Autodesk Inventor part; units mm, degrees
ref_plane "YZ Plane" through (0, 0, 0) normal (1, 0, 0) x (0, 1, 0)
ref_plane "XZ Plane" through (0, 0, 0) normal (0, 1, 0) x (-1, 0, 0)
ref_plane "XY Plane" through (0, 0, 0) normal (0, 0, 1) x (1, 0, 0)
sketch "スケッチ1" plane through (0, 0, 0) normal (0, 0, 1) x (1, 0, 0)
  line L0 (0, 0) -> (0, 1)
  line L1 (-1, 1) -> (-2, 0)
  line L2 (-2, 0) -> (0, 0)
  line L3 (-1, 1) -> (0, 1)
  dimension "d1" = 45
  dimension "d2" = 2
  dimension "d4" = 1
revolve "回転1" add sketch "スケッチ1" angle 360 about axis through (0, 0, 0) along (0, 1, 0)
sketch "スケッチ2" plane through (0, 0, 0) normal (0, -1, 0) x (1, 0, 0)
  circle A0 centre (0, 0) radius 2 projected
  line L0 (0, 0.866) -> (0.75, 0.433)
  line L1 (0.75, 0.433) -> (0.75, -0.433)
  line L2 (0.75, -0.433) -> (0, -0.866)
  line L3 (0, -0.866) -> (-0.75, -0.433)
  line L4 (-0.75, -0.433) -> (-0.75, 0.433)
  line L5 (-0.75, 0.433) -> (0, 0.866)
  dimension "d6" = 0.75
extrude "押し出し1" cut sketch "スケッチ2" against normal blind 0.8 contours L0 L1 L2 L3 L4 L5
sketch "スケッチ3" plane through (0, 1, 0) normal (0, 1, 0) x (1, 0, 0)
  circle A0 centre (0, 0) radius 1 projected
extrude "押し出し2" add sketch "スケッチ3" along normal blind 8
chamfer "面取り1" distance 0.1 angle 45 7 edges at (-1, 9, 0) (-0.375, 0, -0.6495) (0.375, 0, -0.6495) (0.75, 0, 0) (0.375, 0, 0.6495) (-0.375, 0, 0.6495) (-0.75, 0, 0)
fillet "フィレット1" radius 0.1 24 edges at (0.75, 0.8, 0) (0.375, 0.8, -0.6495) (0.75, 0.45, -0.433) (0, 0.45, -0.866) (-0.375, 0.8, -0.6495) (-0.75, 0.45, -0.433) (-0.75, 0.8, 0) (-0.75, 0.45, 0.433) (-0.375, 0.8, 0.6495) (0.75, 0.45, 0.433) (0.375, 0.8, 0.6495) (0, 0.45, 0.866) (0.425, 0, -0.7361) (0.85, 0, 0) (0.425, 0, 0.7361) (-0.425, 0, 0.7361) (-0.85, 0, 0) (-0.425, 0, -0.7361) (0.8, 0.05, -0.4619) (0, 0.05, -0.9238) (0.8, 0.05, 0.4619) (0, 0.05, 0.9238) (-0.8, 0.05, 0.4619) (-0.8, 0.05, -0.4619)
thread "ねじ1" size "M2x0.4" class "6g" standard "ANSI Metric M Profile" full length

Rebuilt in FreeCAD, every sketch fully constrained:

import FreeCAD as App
import Part
import Sketcher

V = App.Vector
Q = App.Units.Quantity


def edges_at(feature, points):
    """Names of the edges that pass closest to the given points."""
    edges = feature.Shape.Edges
    near = lambda p: min(range(len(edges)), key=lambda i: edges[i].distToShape(Part.Vertex(*p))[0])
    return sorted({f"Edge{near(p) + 1}" for p in points})


def add_polygon(sketch, points):
    """Adds a closed chain of lines whose ends are joined by coincident constraints."""
    first, n = sketch.GeometryCount, len(points)
    for a, b in zip(points, points[1:] + points[:1]):
        sketch.addGeometry(Part.LineSegment(App.Vector(*a, 0), App.Vector(*b, 0)), False)
    for i in range(n):
        sketch.addConstraint(Sketcher.Constraint("Coincident", first + i, 2, first + (i + 1) % n, 1))

doc = App.newDocument("Part")
body = doc.addObject("PartDesign::Body", "Body")

sketch1 = doc.addObject("Sketcher::SketchObject", "Sketch")
body.addObject(sketch1)
sketch1.AttachmentSupport = (doc.XY_Plane, [""])
sketch1.MapMode = "FlatFace"
add_polygon(sketch1, [(-2, 0), (0, 0), (0, 1), (-1, 1)])
sketch1.addConstraint([
    Sketcher.Constraint("Horizontal", 0),
    Sketcher.Constraint("Vertical", 1),
    Sketcher.Constraint("Horizontal", 2),
    Sketcher.Constraint("Coincident", 0, 2, -1, 1),
    Sketcher.Constraint("Equal", 2, 1),
    Sketcher.Constraint("DistanceX", 0, 1, 0, 2, 2.0),
    Sketcher.Constraint("DistanceX", 2, 2, 2, 1, 1.0),
])
revolution = doc.addObject("PartDesign::Revolution", "Revolution")
body.addObject(revolution)
revolution.Profile = sketch1
revolution.ReferenceAxis = (sketch1, ["V_Axis"])
revolution.Angle = 360

sketch2 = doc.addObject("Sketcher::SketchObject", "Sketch001")
body.addObject(sketch2)
sketch2.AttachmentSupport = (doc.XZ_Plane, [""])
sketch2.MapMode = "FlatFace"
add_polygon(sketch2, [(0.75, 0.433), (0, 0.866), (-0.75, 0.433), (-0.75, -0.433), (0, -0.866), (0.75, -0.433)])
sketch2.addConstraint([
    Sketcher.Constraint("Vertical", 2),
    Sketcher.Constraint("Vertical", 5),
    Sketcher.Constraint("Symmetric", 0, 2, 3, 2, -1, 1),
    Sketcher.Constraint("Symmetric", 1, 2, 4, 2, -1, 1),
    Sketcher.Constraint("PointOnObject", 0, 2, -2),
    Sketcher.Constraint("Parallel", 0, 3),
    Sketcher.Constraint("Horizontal", 2, 2, 4, 2),
    Sketcher.Constraint("DistanceX", 1, 2, -1, 1, 0.75),
    Sketcher.Constraint("Angle", 0, Q("150.0007 deg")),
    Sketcher.Constraint("DistanceY", 2, 2, 2, 1, 0.866),
])
pocket1 = doc.addObject("PartDesign::Pocket", "Pocket")
body.addObject(pocket1)
pocket1.Profile = sketch2
pocket1.Length = 0.8

sketch3 = doc.addObject("Sketcher::SketchObject", "Sketch002")
body.addObject(sketch3)
sketch3.AttachmentSupport = (doc.XZ_Plane, [""])
sketch3.MapMode = "FlatFace"
sketch3.AttachmentOffset = App.Placement(V(0, 0, -1), App.Rotation())
sketch3.addGeometry(Part.Circle(V(0, 0, 0), V(0, 0, 1), 1), False)
sketch3.addConstraint([
    Sketcher.Constraint("Coincident", 0, 3, -1, 1),
    Sketcher.Constraint("Diameter", 0, 2.0),
])
pad1 = doc.addObject("PartDesign::Pad", "Pad")
body.addObject(pad1)
pad1.Profile = sketch3
pad1.Length = 8
pad1.Reversed = True
doc.recompute()

chamfer = doc.addObject("PartDesign::Chamfer", "Chamfer")
body.addObject(chamfer)
chamfer.Base = (pad1, edges_at(pad1, [
    (-1, 9, 0),
    (-0.375, 0, -0.649),
    (0.375, 0, -0.649),
    (0.75, 0, 0),
    (0.375, 0, 0.649),
    (-0.375, 0, 0.649),
    (-0.75, 0, 0),
]))
chamfer.Size = 0.1
doc.recompute()

fillet = doc.addObject("PartDesign::Fillet", "Fillet")
body.addObject(fillet)
fillet.Base = (chamfer, edges_at(chamfer, [
    (0.75, 0.8, 0),
    (0.375, 0.8, -0.649),
    (0.75, 0.45, -0.433),
    (0, 0.45, -0.866),
    (-0.375, 0.8, -0.649),
    (-0.75, 0.45, -0.433),
    (-0.75, 0.8, 0),
    (-0.75, 0.45, 0.433),
    (-0.375, 0.8, 0.649),
    (0.75, 0.45, 0.433),
    (0.375, 0.8, 0.649),
    (0, 0.45, 0.866),
    (0.425, 0, -0.736),
    (0.85, 0, 0),
    (0.425, 0, 0.736),
    (-0.425, 0, 0.736),
    (-0.85, 0, 0),
    (-0.425, 0, -0.736),
    (0.8, 0.05, -0.462),
    (0, 0.05, -0.924),
    (0.8, 0.05, 0.462),
    (0, 0.05, 0.924),
    (-0.8, 0.05, 0.462),
    (-0.8, 0.05, -0.462),
]))
fillet.Radius = 0.1

doc.recompute()
